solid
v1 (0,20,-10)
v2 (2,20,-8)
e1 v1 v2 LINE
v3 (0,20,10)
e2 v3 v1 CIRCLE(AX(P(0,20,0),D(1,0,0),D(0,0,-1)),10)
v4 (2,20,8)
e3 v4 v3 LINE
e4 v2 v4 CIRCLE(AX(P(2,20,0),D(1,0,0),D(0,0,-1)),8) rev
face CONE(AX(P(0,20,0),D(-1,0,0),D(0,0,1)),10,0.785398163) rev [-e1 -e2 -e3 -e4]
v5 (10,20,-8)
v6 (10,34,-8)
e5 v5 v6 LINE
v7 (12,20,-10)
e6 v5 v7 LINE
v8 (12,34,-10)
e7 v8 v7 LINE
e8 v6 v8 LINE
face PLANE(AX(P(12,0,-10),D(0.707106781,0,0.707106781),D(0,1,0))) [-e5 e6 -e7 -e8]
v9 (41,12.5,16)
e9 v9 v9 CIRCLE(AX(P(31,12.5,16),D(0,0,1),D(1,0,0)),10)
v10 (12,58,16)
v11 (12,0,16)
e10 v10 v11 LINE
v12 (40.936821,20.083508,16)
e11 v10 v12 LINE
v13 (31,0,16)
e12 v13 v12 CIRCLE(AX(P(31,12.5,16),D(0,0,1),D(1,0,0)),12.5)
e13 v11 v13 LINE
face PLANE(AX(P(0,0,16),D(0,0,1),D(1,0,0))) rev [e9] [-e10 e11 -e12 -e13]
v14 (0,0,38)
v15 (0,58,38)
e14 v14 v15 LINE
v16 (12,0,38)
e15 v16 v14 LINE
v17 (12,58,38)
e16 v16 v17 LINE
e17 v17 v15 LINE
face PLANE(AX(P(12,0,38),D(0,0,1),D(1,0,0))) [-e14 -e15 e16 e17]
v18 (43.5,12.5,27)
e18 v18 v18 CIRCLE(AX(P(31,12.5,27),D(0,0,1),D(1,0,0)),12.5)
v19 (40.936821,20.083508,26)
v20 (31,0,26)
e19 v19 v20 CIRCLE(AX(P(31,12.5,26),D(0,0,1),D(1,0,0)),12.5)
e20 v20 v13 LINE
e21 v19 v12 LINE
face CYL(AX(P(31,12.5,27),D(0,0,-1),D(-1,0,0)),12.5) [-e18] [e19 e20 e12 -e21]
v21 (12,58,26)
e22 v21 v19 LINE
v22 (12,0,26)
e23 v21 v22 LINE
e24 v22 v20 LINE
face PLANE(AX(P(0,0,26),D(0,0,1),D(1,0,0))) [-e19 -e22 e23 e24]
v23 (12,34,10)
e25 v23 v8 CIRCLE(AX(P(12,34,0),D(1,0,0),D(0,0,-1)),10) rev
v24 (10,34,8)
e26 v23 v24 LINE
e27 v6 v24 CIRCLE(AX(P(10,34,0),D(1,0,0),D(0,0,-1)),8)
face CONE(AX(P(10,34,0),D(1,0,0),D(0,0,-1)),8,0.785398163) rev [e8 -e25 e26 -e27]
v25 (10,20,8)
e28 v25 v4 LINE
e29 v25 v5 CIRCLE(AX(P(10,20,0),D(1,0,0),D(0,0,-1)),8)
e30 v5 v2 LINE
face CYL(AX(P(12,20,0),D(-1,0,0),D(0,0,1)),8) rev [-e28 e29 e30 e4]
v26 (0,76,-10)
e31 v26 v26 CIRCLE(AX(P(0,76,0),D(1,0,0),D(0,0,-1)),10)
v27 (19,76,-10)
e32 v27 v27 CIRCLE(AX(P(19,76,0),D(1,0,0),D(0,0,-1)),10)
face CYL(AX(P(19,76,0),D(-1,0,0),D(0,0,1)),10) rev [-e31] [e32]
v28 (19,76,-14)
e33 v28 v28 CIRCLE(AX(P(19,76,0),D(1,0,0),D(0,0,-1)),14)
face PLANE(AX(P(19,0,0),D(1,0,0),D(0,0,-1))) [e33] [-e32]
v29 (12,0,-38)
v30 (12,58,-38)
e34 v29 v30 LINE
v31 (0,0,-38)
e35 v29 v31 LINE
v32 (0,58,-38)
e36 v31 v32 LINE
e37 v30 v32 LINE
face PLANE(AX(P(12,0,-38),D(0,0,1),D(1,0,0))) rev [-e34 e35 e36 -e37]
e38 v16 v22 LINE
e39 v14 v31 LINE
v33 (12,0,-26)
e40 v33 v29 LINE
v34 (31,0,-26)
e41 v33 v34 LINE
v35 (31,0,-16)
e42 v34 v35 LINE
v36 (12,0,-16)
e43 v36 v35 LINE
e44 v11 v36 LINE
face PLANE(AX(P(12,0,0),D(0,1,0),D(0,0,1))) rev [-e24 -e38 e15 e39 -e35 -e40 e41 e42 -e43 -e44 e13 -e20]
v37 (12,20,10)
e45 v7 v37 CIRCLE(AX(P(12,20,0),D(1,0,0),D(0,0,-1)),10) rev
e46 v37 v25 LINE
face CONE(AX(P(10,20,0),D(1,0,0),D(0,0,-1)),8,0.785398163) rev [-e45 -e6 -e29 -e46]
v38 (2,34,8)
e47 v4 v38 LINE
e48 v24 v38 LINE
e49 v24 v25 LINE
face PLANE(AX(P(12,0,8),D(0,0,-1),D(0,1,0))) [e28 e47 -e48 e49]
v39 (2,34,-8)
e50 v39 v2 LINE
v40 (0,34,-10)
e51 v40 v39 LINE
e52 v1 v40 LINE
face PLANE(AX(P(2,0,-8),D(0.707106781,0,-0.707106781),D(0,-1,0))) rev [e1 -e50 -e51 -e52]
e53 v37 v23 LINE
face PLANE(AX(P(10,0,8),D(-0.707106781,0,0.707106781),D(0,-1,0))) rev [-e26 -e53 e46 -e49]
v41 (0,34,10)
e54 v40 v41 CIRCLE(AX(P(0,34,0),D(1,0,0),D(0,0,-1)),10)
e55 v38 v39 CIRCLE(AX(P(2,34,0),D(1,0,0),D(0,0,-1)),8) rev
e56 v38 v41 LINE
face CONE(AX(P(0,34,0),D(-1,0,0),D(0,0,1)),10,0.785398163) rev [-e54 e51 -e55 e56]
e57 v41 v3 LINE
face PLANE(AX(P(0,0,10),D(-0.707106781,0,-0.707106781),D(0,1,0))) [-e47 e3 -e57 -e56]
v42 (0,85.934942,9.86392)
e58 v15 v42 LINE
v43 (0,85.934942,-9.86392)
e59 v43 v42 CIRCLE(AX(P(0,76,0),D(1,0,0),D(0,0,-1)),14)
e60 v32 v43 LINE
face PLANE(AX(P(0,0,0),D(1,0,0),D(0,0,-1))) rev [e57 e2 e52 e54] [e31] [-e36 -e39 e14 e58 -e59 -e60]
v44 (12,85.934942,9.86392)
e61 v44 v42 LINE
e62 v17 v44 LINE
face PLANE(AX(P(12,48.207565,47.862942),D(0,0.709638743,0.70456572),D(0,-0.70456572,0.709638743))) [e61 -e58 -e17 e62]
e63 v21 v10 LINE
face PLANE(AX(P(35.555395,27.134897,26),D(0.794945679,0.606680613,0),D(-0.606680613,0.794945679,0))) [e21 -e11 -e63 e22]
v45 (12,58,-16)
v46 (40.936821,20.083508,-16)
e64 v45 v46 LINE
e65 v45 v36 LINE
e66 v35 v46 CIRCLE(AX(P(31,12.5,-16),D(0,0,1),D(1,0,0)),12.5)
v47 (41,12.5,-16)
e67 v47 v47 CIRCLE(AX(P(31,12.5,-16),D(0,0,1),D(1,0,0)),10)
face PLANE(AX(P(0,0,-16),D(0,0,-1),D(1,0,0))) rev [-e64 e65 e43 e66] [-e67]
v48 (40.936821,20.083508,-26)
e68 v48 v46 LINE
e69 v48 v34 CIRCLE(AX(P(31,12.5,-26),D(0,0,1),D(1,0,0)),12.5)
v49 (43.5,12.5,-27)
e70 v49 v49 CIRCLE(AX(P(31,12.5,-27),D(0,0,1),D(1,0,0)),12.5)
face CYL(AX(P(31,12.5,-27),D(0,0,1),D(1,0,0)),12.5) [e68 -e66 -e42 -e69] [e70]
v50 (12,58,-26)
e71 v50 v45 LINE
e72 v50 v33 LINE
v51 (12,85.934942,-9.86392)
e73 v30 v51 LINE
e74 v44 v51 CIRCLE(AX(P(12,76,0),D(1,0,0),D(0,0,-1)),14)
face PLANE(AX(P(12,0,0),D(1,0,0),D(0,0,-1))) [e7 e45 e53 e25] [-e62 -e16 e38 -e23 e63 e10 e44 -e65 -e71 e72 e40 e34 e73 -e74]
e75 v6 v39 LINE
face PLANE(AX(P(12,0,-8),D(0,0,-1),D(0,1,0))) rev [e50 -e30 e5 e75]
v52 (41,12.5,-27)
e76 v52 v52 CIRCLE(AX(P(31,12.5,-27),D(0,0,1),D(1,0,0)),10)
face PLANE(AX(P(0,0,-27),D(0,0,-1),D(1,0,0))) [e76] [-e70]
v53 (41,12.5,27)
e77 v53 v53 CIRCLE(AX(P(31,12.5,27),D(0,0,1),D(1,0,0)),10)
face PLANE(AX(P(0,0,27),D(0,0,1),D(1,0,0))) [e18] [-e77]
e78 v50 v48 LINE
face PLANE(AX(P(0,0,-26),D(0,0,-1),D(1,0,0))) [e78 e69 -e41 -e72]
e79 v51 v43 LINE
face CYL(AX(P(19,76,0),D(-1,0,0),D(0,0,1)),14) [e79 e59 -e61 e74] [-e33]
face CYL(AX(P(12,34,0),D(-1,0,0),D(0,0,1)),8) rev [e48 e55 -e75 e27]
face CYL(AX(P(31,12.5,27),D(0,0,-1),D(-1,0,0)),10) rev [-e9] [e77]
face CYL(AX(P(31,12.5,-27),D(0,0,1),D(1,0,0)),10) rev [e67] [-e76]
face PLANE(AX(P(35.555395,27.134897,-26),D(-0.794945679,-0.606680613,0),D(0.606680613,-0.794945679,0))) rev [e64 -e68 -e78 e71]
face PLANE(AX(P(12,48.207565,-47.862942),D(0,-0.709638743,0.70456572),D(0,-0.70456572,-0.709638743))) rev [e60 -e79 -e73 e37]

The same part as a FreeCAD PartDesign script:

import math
import FreeCAD as App
import Part
import Sketcher
from FreeCAD import Vector
Q = App.Units.Quantity


def edges_at(feature, points):
    """Names of the edges that pass closest to the given points."""
    edges = feature.Shape.Edges
    near = lambda p: min(range(len(edges)), key=lambda i: edges[i].distToShape(Part.Vertex(*p))[0])
    return sorted({f"Edge{near(p) + 1}" for p in points})

doc = App.newDocument("Part")
params = doc.addObject("Spreadsheet::Sheet", "Params")
for row, (alias, value) in enumerate([
    ("sketch1_radius", "14 mm"),
    ("sketch1_radius2", "8 mm"),
    ("sketch1_width", "58 mm"),
    ("sketch1_width2", "14 mm"),
    ("sketch1_height", "76 mm"),
    ("pad1_length", "12 mm"),
    ("sketch2_diameter", "28 mm"),
    ("sketch2_diameter2", "20 mm"),
    ("pad2_length", "19 mm"),
    ("sketch3_radius", "12.5 mm"),
    ("sketch3_width", "19 mm"),
    ("sketch3_height", "58 mm"),
    ("pad3_length", "10 mm"),
    ("sketch4_diameter", "25 mm"),
    ("sketch4_diameter2", "20 mm"),
    ("pad4_length", "11 mm"),
    ("chamfer_size", "2 mm"),
], start=1):
    params.set(f"A{row}", alias)
    params.set(f"B{row}", "=" + value)
    params.setAlias(f"B{row}", alias)

body = doc.addObject("PartDesign::Body", "Body")

sketch1 = doc.addObject("Sketcher::SketchObject", "Sketch")
body.addObject(sketch1)
sketch1.AttachmentSupport = (doc.YZ_Plane, [""])
sketch1.MapMode = "FlatFace"
sketch1.addGeometry(Part.LineSegment(Vector(0, -38, 0), Vector(58, -38, 0)), False)
sketch1.addGeometry(Part.LineSegment(Vector(58, -38, 0), Vector(85.934942, -9.86392, 0)), False)
sketch1.addGeometry(Part.ArcOfCircle(Part.Circle(Vector(76, 0, 0), Vector(0, 0, 1), 14), math.radians(-90), math.radians(-44.79447)), False)
sketch1.addGeometry(Part.ArcOfCircle(Part.Circle(Vector(76, 0, 0), Vector(0, 0, 1), 14), math.radians(44.79447), math.radians(270)), False)
sketch1.addGeometry(Part.LineSegment(Vector(85.934942, 9.86392, 0), Vector(58, 38, 0)), False)
sketch1.addGeometry(Part.LineSegment(Vector(58, 38, 0), Vector(0, 38, 0)), False)
sketch1.addGeometry(Part.LineSegment(Vector(0, 38, 0), Vector(0, -38, 0)), False)
sketch1.addGeometry(Part.LineSegment(Vector(20, 8, 0), Vector(34, 8, 0)), False)
sketch1.addGeometry(Part.ArcOfCircle(Part.Circle(Vector(34, 0, 0), Vector(0, 0, 1), 8), math.radians(-90), math.radians(90)), False)
sketch1.addGeometry(Part.LineSegment(Vector(34, -8, 0), Vector(20, -8, 0)), False)
sketch1.addGeometry(Part.ArcOfCircle(Part.Circle(Vector(20, 0, 0), Vector(0, 0, 1), 8), math.radians(90), math.radians(270)), False)
sketch1.addConstraint(Sketcher.Constraint("Coincident", 0, 2, 1, 1))
sketch1.addConstraint(Sketcher.Constraint("Tangent", 1, 2, 2, 2))
sketch1.addConstraint(Sketcher.Constraint("Tangent", 2, 1, 3, 2))
sketch1.addConstraint(Sketcher.Constraint("Tangent", 3, 1, 4, 1))
sketch1.addConstraint(Sketcher.Constraint("Coincident", 4, 2, 5, 1))
sketch1.addConstraint(Sketcher.Constraint("Coincident", 5, 2, 6, 1))
sketch1.addConstraint(Sketcher.Constraint("Coincident", 6, 2, 0, 1))
sketch1.addConstraint(Sketcher.Constraint("Tangent", 7, 2, 8, 2))
sketch1.addConstraint(Sketcher.Constraint("Tangent", 8, 1, 9, 1))
sketch1.addConstraint(Sketcher.Constraint("Tangent", 9, 2, 10, 2))
sketch1.addConstraint(Sketcher.Constraint("Tangent", 10, 1, 7, 1))
sketch1.addConstraint(Sketcher.Constraint("Horizontal", 0))
sketch1.addConstraint(Sketcher.Constraint("Horizontal", 5))
sketch1.addConstraint(Sketcher.Constraint("Vertical", 6))
sketch1.addConstraint(Sketcher.Constraint("Horizontal", 7))
sketch1.addConstraint(Sketcher.Constraint("Horizontal", 9))
sketch1.addConstraint(Sketcher.Constraint("Equal", 2, 3))
sketch1.addConstraint(Sketcher.Constraint("Symmetric", 5, 2, 6, 2, -1, 1))
sketch1.addConstraint(Sketcher.Constraint("Symmetric", 1, 2, 3, 1, -1))
sketch1.addConstraint(Sketcher.Constraint("PointOnObject", 8, 3, -1))
sketch1.addConstraint(Sketcher.Constraint("Vertical", 3, 3, 2, 1))
sketch1.addConstraint(Sketcher.Constraint("Radius", 2, Q("14 mm")))
sketch1.addConstraint(Sketcher.Constraint("Radius", 8, Q("8 mm")))
sketch1.addConstraint(Sketcher.Constraint("DistanceX", 0, 1, 0, 2, Q("58 mm")))
sketch1.addConstraint(Sketcher.Constraint("DistanceX", 7, 1, 7, 2, Q("14 mm")))
sketch1.addConstraint(Sketcher.Constraint("DistanceY", 6, 2, 6, 1, Q("76 mm")))
sketch1.addConstraint(Sketcher.Constraint("DistanceX", -1, 1, 2, 3, Q("76 mm")))
sketch1.addConstraint(Sketcher.Constraint("DistanceX", -1, 1, 8, 3, Q("34 mm")))
sketch1.setExpression("Constraints[21]", "Params.sketch1_radius")
sketch1.setExpression("Constraints[22]", "Params.sketch1_radius2")
sketch1.setExpression("Constraints[23]", "Params.sketch1_width")
sketch1.setExpression("Constraints[24]", "Params.sketch1_width2")
sketch1.setExpression("Constraints[25]", "Params.sketch1_height")
pad1 = doc.addObject("PartDesign::Pad", "Pad")
body.addObject(pad1)
pad1.Profile = sketch1
pad1.setExpression("Length", "Params.pad1_length")

sketch2 = doc.addObject("Sketcher::SketchObject", "Sketch001")
body.addObject(sketch2)
sketch2.AttachmentSupport = (doc.YZ_Plane, [""])
sketch2.MapMode = "FlatFace"
sketch2.addGeometry(Part.Circle(Vector(76, 0, 0), Vector(0, 0, 1), 14), False)
sketch2.addGeometry(Part.Circle(Vector(76, 0, 0), Vector(0, 0, 1), 10), False)
sketch2.addConstraint(Sketcher.Constraint("Coincident", 1, 3, 0, 3))
sketch2.addConstraint(Sketcher.Constraint("PointOnObject", 0, 3, -1))
sketch2.addConstraint(Sketcher.Constraint("Diameter", 0, Q("28 mm")))
sketch2.addConstraint(Sketcher.Constraint("Diameter", 1, Q("20 mm")))
sketch2.addConstraint(Sketcher.Constraint("DistanceX", -1, 1, 0, 3, Q("76 mm")))
sketch2.setExpression("Constraints[2]", "Params.sketch2_diameter")
sketch2.setExpression("Constraints[3]", "Params.sketch2_diameter2")
pad2 = doc.addObject("PartDesign::Pad", "Pad001")
body.addObject(pad2)
pad2.Profile = sketch2
pad2.setExpression("Length", "Params.pad2_length")

sketch3 = doc.addObject("Sketcher::SketchObject", "Sketch002")
body.addObject(sketch3)
sketch3.AttachmentSupport = (doc.XY_Plane, [""])
sketch3.MapMode = "FlatFace"
sketch3.AttachmentOffset = App.Placement(Vector(0, 0, 16), App.Rotation())
sketch3.addGeometry(Part.LineSegment(Vector(12, 58, 0), Vector(12, 0, 0)), False)
sketch3.addGeometry(Part.LineSegment(Vector(12, 0, 0), Vector(31, 0, 0)), False)
sketch3.addGeometry(Part.ArcOfCircle(Part.Circle(Vector(31, 12.5, 0), Vector(0, 0, 1), 12.5), math.radians(37.349875), math.radians(270)), False)
sketch3.addGeometry(Part.LineSegment(Vector(40.936821, 20.083508, 0), Vector(12, 58, 0)), False)
sketch3.addConstraint(Sketcher.Constraint("Coincident", 0, 2, 1, 1))
sketch3.addConstraint(Sketcher.Constraint("Tangent", 1, 2, 2, 2))
sketch3.addConstraint(Sketcher.Constraint("Tangent", 2, 1, 3, 1))
sketch3.addConstraint(Sketcher.Constraint("Coincident", 3, 2, 0, 1))
sketch3.addConstraint(Sketcher.Constraint("Vertical", 0))
sketch3.addConstraint(Sketcher.Constraint("Horizontal", 1))
sketch3.addConstraint(Sketcher.Constraint("PointOnObject", 0, 2, -1))
sketch3.addConstraint(Sketcher.Constraint("Radius", 2, Q("12.5 mm")))
sketch3.addConstraint(Sketcher.Constraint("DistanceX", 1, 1, 1, 2, Q("19 mm")))
sketch3.addConstraint(Sketcher.Constraint("DistanceY", 0, 2, 0, 1, Q("58 mm")))
sketch3.addConstraint(Sketcher.Constraint("DistanceX", -1, 1, 2, 3, Q("31 mm")))
sketch3.setExpression("Constraints[7]", "Params.sketch3_radius")
sketch3.setExpression("Constraints[8]", "Params.sketch3_width")
sketch3.setExpression("Constraints[9]", "Params.sketch3_height")
pad3 = doc.addObject("PartDesign::Pad", "Pad002")
body.addObject(pad3)
pad3.Profile = sketch3
pad3.setExpression("Length", "Params.pad3_length")

sketch4 = doc.addObject("Sketcher::SketchObject", "Sketch003")
body.addObject(sketch4)
sketch4.AttachmentSupport = (doc.XY_Plane, [""])
sketch4.MapMode = "FlatFace"
sketch4.AttachmentOffset = App.Placement(Vector(0, 0, 16), App.Rotation())
sketch4.addGeometry(Part.Circle(Vector(31, 12.5, 0), Vector(0, 0, 1), 12.5), False)
sketch4.addGeometry(Part.Circle(Vector(31, 12.5, 0), Vector(0, 0, 1), 10), False)
sketch4.addConstraint(Sketcher.Constraint("Coincident", 1, 3, 0, 3))
sketch4.addConstraint(Sketcher.Constraint("Diameter", 0, Q("25 mm")))
sketch4.addConstraint(Sketcher.Constraint("Diameter", 1, Q("20 mm")))
sketch4.addConstraint(Sketcher.Constraint("DistanceX", -1, 1, 0, 3, Q("31 mm")))
sketch4.addConstraint(Sketcher.Constraint("DistanceY", -1, 1, 0, 3, Q("12.5 mm")))
sketch4.setExpression("Constraints[1]", "Params.sketch4_diameter")
sketch4.setExpression("Constraints[2]", "Params.sketch4_diameter2")
pad4 = doc.addObject("PartDesign::Pad", "Pad003")
body.addObject(pad4)
pad4.Profile = sketch4
pad4.setExpression("Length", "Params.pad4_length")
doc.recompute()

mirrored = doc.addObject("PartDesign::Mirrored", "Mirrored")
body.addObject(mirrored)
mirrored.Originals = [pad3, pad4]
mirrored.MirrorPlane = (doc.XY_Plane, [""])
body.Tip = mirrored
doc.recompute()

chamfer = doc.addObject("PartDesign::Chamfer", "Chamfer")
body.addObject(chamfer)
chamfer.Base = (mirrored, edges_at(mirrored, [
    (12, 27, 8),
    (0, 27, -8),
    (0, 42, 0),
    (0, 27, 8),
    (0, 12, 0),
    (12, 42, 0),
    (12, 27, -8),
    (12, 12, 0),
]))
chamfer.setExpression("Size", "Params.chamfer_size")

doc.recompute()
